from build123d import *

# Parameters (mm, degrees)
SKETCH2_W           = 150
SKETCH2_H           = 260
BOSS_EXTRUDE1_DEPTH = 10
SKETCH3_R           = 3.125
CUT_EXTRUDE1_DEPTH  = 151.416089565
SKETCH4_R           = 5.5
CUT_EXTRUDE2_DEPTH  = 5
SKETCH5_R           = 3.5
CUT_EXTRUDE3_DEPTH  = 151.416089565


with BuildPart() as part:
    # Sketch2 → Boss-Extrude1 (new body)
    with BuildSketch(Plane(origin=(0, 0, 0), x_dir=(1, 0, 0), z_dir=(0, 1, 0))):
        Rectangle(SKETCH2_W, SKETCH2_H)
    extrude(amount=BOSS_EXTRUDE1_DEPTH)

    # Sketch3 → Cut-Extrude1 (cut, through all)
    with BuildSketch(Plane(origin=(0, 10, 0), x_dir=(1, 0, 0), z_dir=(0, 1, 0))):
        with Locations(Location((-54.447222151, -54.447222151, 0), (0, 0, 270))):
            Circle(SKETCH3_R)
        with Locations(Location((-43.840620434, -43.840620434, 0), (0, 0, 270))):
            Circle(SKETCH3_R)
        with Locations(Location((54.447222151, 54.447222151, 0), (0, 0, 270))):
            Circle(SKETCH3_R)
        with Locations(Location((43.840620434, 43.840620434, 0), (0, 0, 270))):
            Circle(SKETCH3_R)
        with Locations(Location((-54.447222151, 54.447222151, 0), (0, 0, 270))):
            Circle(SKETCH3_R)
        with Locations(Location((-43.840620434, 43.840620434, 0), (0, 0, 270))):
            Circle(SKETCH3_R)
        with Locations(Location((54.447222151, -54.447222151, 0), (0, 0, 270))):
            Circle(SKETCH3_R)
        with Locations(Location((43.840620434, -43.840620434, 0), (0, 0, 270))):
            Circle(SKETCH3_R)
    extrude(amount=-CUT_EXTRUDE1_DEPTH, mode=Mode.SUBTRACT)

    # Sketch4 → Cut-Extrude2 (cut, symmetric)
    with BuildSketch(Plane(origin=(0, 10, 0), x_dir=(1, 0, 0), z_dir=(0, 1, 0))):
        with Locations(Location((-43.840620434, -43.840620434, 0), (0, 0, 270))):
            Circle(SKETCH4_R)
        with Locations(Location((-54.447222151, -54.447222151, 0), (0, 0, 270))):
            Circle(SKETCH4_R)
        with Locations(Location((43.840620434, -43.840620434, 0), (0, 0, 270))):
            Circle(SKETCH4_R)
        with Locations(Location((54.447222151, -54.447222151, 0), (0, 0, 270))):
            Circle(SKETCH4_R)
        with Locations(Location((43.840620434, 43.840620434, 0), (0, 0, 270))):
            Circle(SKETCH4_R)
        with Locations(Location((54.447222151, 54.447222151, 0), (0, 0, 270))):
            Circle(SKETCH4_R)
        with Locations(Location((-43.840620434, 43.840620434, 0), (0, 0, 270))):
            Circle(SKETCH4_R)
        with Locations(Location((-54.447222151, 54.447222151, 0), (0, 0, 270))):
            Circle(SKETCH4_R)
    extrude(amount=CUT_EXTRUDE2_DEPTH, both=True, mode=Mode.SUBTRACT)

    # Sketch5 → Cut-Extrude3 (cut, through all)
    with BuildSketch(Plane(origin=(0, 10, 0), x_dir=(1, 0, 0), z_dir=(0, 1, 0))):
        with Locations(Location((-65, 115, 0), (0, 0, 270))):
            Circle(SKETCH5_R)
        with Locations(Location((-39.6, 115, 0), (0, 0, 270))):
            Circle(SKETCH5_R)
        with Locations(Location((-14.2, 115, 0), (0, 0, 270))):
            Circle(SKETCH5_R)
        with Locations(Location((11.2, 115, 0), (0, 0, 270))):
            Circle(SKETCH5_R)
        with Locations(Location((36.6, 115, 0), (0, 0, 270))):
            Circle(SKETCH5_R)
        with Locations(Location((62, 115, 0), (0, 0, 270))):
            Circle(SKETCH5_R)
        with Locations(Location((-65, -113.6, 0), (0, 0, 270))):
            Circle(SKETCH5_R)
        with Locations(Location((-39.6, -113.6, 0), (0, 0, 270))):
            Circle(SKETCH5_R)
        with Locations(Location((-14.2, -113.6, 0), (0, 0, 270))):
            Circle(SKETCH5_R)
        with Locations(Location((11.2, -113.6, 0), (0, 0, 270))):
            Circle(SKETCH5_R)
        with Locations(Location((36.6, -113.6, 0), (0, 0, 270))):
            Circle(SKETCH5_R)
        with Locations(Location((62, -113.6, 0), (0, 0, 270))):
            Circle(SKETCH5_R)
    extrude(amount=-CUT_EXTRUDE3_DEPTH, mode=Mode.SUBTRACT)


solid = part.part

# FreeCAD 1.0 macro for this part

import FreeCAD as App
import Part
import Sketcher
from FreeCAD import Vector
Q = App.Units.Quantity

doc = App.newDocument("Part")
params = doc.addObject("Spreadsheet::Sheet", "Params")
for row, (alias, value) in enumerate([
    ("sketch1_width", "150 mm"),
    ("sketch1_height", "260 mm"),
    ("pad1_length", "10 mm"),
    ("sketch2_diameter", "6.25 mm"),
    ("sketch3_diameter", "11 mm"),
    ("pocket2_length", "10 mm"),
    ("sketch4_diameter", "7 mm"),
], start=1):
    params.set(f"A{row}", alias)
    params.set(f"B{row}", "=" + value)
    params.setAlias(f"B{row}", alias)

body = doc.addObject("PartDesign::Body", "Body")

# Sketch on XZ plane
sketch1 = doc.addObject("Sketcher::SketchObject", "Sketch")
body.addObject(sketch1)
sketch1.AttachmentSupport = (doc.XZ_Plane, [""])
sketch1.MapMode = "FlatFace"
sketch1.addGeometry([
    Part.LineSegment(Vector(-75, -130, 0), Vector(-75, 130, 0)),
    Part.LineSegment(Vector(-75, 130, 0), Vector(75, 130, 0)),
    Part.LineSegment(Vector(75, 130, 0), Vector(75, -130, 0)),
    Part.LineSegment(Vector(75, -130, 0), Vector(-75, -130, 0)),
], False)
sketch1.addConstraint([
    Sketcher.Constraint("Coincident", 0, 2, 1, 1),
    Sketcher.Constraint("Coincident", 1, 2, 2, 1),
    Sketcher.Constraint("Coincident", 2, 2, 3, 1),
    Sketcher.Constraint("Coincident", 3, 2, 0, 1),
    Sketcher.Constraint("Vertical", 0),
    Sketcher.Constraint("Horizontal", 1),
    Sketcher.Constraint("Vertical", 2),
    Sketcher.Constraint("Horizontal", 3),
    Sketcher.Constraint("Symmetric", 0, 2, 2, 2, -1, 1),
    Sketcher.Constraint("DistanceX", 1, 1, 1, 2, Q("150 mm")),
    Sketcher.Constraint("DistanceY", 0, 1, 0, 2, Q("260 mm")),
])
sketch1.setExpression("Constraints[9]", "Params.sketch1_width")
sketch1.setExpression("Constraints[10]", "Params.sketch1_height")
pad1 = doc.addObject("PartDesign::Pad", "Pad")
body.addObject(pad1)
pad1.Profile = sketch1
pad1.setExpression("Length", "Params.pad1_length")
pad1.Reversed = True

# Sketch on XZ plane
sketch2 = doc.addObject("Sketcher::SketchObject", "Sketch001")
body.addObject(sketch2)
sketch2.AttachmentSupport = (doc.XZ_Plane, [""])
sketch2.MapMode = "FlatFace"
sketch2.AttachmentOffset = App.Placement(Vector(0, 0, -10), App.Rotation())
sketch2.addGeometry([
    Part.Circle(Vector(-54.4, 54.4, 0), Vector(0, 0, 1), 3.1),  # 0
    Part.Circle(Vector(-43.8, 43.8, 0), Vector(0, 0, 1), 3.1),  # 1
    Part.Circle(Vector(54.4, -54.4, 0), Vector(0, 0, 1), 3.1),  # 2
    Part.Circle(Vector(43.8, -43.8, 0), Vector(0, 0, 1), 3.1),  # 3
    Part.Circle(Vector(-54.4, -54.4, 0), Vector(0, 0, 1), 3.1),  # 4
    Part.Circle(Vector(-43.8, -43.8, 0), Vector(0, 0, 1), 3.1),  # 5
    Part.Circle(Vector(54.4, 54.4, 0), Vector(0, 0, 1), 3.1),  # 6
    Part.Circle(Vector(43.8, 43.8, 0), Vector(0, 0, 1), 3.1),  # 7
], False)
sketch2.addConstraint([
    Sketcher.Constraint("Equal", 0, 1),
    Sketcher.Constraint("Equal", 1, 2),
    Sketcher.Constraint("Equal", 2, 3),
    Sketcher.Constraint("Equal", 3, 4),
    Sketcher.Constraint("Equal", 4, 5),
    Sketcher.Constraint("Equal", 5, 6),
    Sketcher.Constraint("Equal", 6, 7),
    Sketcher.Constraint("Symmetric", 0, 3, 2, 3, -1, 1),
    Sketcher.Constraint("Symmetric", 1, 3, 3, 3, -1, 1),
    Sketcher.Constraint("Symmetric", 4, 3, 6, 3, -1, 1),
    Sketcher.Constraint("Symmetric", 5, 3, 7, 3, -1, 1),
    Sketcher.Constraint("Symmetric", 2, 3, 4, 3, -2),
    Sketcher.Constraint("Symmetric", 3, 3, 5, 3, -2),
    Sketcher.Constraint("Diameter", 0, Q("6.25 mm")),
    Sketcher.Constraint("DistanceX", 0, 3, 1, 3, Q("10.606602 mm")),
    Sketcher.Constraint("DistanceY", 1, 3, 0, 3, Q("10.606602 mm")),
    Sketcher.Constraint("DistanceX", 1, 3, -1, 1, Q("43.84062 mm")),
    Sketcher.Constraint("DistanceY", -1, 1, 1, 3, Q("43.84062 mm")),
])
sketch2.setExpression("Constraints[13]", "Params.sketch2_diameter")
pocket1 = doc.addObject("PartDesign::Pocket", "Pocket")
body.addObject(pocket1)
pocket1.Profile = sketch2
pocket1.Type = "ThroughAll"
pocket1.Reversed = True

# Sketch on XZ plane
sketch3 = doc.addObject("Sketcher::SketchObject", "Sketch002")
body.addObject(sketch3)
sketch3.AttachmentSupport = (doc.XZ_Plane, [""])
sketch3.MapMode = "FlatFace"
sketch3.AttachmentOffset = App.Placement(Vector(0, 0, -10), App.Rotation())
sketch3.addGeometry([
    Part.Circle(Vector(-44, 44, 0), Vector(0, 0, 1), 6),  # 0
    Part.Circle(Vector(-54, 54, 0), Vector(0, 0, 1), 6),  # 1
    Part.Circle(Vector(44, 44, 0), Vector(0, 0, 1), 6),  # 2
    Part.Circle(Vector(54, 54, 0), Vector(0, 0, 1), 6),  # 3
    Part.Circle(Vector(44, -44, 0), Vector(0, 0, 1), 6),  # 4
    Part.Circle(Vector(54, -54, 0), Vector(0, 0, 1), 6),  # 5
    Part.Circle(Vector(-44, -44, 0), Vector(0, 0, 1), 6),  # 6
    Part.Circle(Vector(-54, -54, 0), Vector(0, 0, 1), 6),  # 7
], False)
sketch3.addConstraint([
    Sketcher.Constraint("Equal", 0, 1),
    Sketcher.Constraint("Equal", 1, 2),
    Sketcher.Constraint("Equal", 2, 3),
    Sketcher.Constraint("Equal", 3, 4),
    Sketcher.Constraint("Equal", 4, 5),
    Sketcher.Constraint("Equal", 5, 6),
    Sketcher.Constraint("Equal", 6, 7),
    Sketcher.Constraint("Symmetric", 0, 3, 4, 3, -1, 1),
    Sketcher.Constraint("Symmetric", 1, 3, 5, 3, -1, 1),
    Sketcher.Constraint("Symmetric", 2, 3, 6, 3, -1, 1),
    Sketcher.Constraint("Symmetric", 3, 3, 7, 3, -1, 1),
    Sketcher.Constraint("Symmetric", 0, 3, 2, 3, -2),
    Sketcher.Constraint("Symmetric", 1, 3, 3, 3, -2),
    Sketcher.Constraint("Diameter", 0, Q("11 mm")),
    Sketcher.Constraint("DistanceX", 1, 3, 0, 3, Q("10.606602 mm")),
    Sketcher.Constraint("DistanceY", 0, 3, 1, 3, Q("10.606602 mm")),
    Sketcher.Constraint("DistanceX", 0, 3, -1, 1, Q("43.84062 mm")),
    Sketcher.Constraint("DistanceY", -1, 1, 0, 3, Q("43.84062 mm")),
])
sketch3.setExpression("Constraints[13]", "Params.sketch3_diameter")
pocket2 = doc.addObject("PartDesign::Pocket", "Pocket001")
body.addObject(pocket2)
pocket2.Profile = sketch3
pocket2.setExpression("Length", "Params.pocket2_length")
pocket2.Midplane = True

# Sketch on XZ plane
sketch4 = doc.addObject("Sketcher::SketchObject", "Sketch003")
body.addObject(sketch4)
sketch4.AttachmentSupport = (doc.XZ_Plane, [""])
sketch4.MapMode = "FlatFace"
sketch4.AttachmentOffset = App.Placement(Vector(0, 0, -10), App.Rotation())
sketch4.addGeometry([
    Part.Circle(Vector(-65, -115, 0), Vector(0, 0, 1), 3.5),  # 0
    Part.Circle(Vector(-39.6, -115, 0), Vector(0, 0, 1), 3.5),  # 1
    Part.Circle(Vector(-14.2, -115, 0), Vector(0, 0, 1), 3.5),  # 2
    Part.Circle(Vector(11.2, -115, 0), Vector(0, 0, 1), 3.5),  # 3
    Part.Circle(Vector(36.6, -115, 0), Vector(0, 0, 1), 3.5),  # 4
    Part.Circle(Vector(62, -115, 0), Vector(0, 0, 1), 3.5),  # 5
    Part.Circle(Vector(-65, 113.6, 0), Vector(0, 0, 1), 3.5),  # 6
    Part.Circle(Vector(-39.6, 113.6, 0), Vector(0, 0, 1), 3.5),  # 7
    Part.Circle(Vector(-14.2, 113.6, 0), Vector(0, 0, 1), 3.5),  # 8
    Part.Circle(Vector(11.2, 113.6, 0), Vector(0, 0, 1), 3.5),  # 9
    Part.Circle(Vector(36.6, 113.6, 0), Vector(0, 0, 1), 3.5),  # 10
    Part.Circle(Vector(62, 113.6, 0), Vector(0, 0, 1), 3.5),  # 11
], False)
sketch4.addConstraint([
    Sketcher.Constraint("Equal", 0, 1),
    Sketcher.Constraint("Equal", 1, 2),
    Sketcher.Constraint("Equal", 2, 3),
    Sketcher.Constraint("Equal", 3, 4),
    Sketcher.Constraint("Equal", 4, 5),
    Sketcher.Constraint("Equal", 5, 6),
    Sketcher.Constraint("Equal", 6, 7),
    Sketcher.Constraint("Equal", 7, 8),
    Sketcher.Constraint("Equal", 8, 9),
    Sketcher.Constraint("Equal", 9, 10),
    Sketcher.Constraint("Equal", 10, 11),
    Sketcher.Constraint("Horizontal", 0, 3, 1, 3),
    Sketcher.Constraint("Horizontal", 1, 3, 2, 3),
    Sketcher.Constraint("Horizontal", 2, 3, 3, 3),
    Sketcher.Constraint("Horizontal", 3, 3, 4, 3),
    Sketcher.Constraint("Horizontal", 4, 3, 5, 3),
    Sketcher.Constraint("Horizontal", 6, 3, 7, 3),
    Sketcher.Constraint("Horizontal", 7, 3, 8, 3),
    Sketcher.Constraint("Horizontal", 8, 3, 9, 3),
    Sketcher.Constraint("Horizontal", 9, 3, 10, 3),
    Sketcher.Constraint("Horizontal", 10, 3, 11, 3),
    Sketcher.Constraint("Vertical", 0, 3, 6, 3),
    Sketcher.Constraint("Vertical", 1, 3, 7, 3),
    Sketcher.Constraint("Vertical", 2, 3, 8, 3),
    Sketcher.Constraint("Vertical", 3, 3, 9, 3),
    Sketcher.Constraint("Vertical", 4, 3, 10, 3),
    Sketcher.Constraint("Vertical", 5, 3, 11, 3),
    Sketcher.Constraint("Diameter", 0, Q("7 mm")),
    Sketcher.Constraint("DistanceX", 0, 3, -1, 1, Q("65 mm")),
    Sketcher.Constraint("DistanceY", 0, 3, -1, 1, Q("115 mm")),
    Sketcher.Constraint("DistanceX", -1, 1, 5, 3, Q("62 mm")),
    Sketcher.Constraint("DistanceX", 1, 3, -1, 1, Q("39.6 mm")),
    Sketcher.Constraint("DistanceX", 2, 3, -1, 1, Q("14.2 mm")),
    Sketcher.Constraint("DistanceX", -1, 1, 3, 3, Q("11.2 mm")),
    Sketcher.Constraint("DistanceX", -1, 1, 4, 3, Q("36.6 mm")),
    Sketcher.Constraint("DistanceY", -1, 1, 6, 3, Q("113.6 mm")),
])
sketch4.setExpression("Constraints[27]", "Params.sketch4_diameter")
pocket3 = doc.addObject("PartDesign::Pocket", "Pocket002")
body.addObject(pocket3)
pocket3.Profile = sketch4
pocket3.Type = "ThroughAll"
pocket3.Reversed = True

doc.recompute()
